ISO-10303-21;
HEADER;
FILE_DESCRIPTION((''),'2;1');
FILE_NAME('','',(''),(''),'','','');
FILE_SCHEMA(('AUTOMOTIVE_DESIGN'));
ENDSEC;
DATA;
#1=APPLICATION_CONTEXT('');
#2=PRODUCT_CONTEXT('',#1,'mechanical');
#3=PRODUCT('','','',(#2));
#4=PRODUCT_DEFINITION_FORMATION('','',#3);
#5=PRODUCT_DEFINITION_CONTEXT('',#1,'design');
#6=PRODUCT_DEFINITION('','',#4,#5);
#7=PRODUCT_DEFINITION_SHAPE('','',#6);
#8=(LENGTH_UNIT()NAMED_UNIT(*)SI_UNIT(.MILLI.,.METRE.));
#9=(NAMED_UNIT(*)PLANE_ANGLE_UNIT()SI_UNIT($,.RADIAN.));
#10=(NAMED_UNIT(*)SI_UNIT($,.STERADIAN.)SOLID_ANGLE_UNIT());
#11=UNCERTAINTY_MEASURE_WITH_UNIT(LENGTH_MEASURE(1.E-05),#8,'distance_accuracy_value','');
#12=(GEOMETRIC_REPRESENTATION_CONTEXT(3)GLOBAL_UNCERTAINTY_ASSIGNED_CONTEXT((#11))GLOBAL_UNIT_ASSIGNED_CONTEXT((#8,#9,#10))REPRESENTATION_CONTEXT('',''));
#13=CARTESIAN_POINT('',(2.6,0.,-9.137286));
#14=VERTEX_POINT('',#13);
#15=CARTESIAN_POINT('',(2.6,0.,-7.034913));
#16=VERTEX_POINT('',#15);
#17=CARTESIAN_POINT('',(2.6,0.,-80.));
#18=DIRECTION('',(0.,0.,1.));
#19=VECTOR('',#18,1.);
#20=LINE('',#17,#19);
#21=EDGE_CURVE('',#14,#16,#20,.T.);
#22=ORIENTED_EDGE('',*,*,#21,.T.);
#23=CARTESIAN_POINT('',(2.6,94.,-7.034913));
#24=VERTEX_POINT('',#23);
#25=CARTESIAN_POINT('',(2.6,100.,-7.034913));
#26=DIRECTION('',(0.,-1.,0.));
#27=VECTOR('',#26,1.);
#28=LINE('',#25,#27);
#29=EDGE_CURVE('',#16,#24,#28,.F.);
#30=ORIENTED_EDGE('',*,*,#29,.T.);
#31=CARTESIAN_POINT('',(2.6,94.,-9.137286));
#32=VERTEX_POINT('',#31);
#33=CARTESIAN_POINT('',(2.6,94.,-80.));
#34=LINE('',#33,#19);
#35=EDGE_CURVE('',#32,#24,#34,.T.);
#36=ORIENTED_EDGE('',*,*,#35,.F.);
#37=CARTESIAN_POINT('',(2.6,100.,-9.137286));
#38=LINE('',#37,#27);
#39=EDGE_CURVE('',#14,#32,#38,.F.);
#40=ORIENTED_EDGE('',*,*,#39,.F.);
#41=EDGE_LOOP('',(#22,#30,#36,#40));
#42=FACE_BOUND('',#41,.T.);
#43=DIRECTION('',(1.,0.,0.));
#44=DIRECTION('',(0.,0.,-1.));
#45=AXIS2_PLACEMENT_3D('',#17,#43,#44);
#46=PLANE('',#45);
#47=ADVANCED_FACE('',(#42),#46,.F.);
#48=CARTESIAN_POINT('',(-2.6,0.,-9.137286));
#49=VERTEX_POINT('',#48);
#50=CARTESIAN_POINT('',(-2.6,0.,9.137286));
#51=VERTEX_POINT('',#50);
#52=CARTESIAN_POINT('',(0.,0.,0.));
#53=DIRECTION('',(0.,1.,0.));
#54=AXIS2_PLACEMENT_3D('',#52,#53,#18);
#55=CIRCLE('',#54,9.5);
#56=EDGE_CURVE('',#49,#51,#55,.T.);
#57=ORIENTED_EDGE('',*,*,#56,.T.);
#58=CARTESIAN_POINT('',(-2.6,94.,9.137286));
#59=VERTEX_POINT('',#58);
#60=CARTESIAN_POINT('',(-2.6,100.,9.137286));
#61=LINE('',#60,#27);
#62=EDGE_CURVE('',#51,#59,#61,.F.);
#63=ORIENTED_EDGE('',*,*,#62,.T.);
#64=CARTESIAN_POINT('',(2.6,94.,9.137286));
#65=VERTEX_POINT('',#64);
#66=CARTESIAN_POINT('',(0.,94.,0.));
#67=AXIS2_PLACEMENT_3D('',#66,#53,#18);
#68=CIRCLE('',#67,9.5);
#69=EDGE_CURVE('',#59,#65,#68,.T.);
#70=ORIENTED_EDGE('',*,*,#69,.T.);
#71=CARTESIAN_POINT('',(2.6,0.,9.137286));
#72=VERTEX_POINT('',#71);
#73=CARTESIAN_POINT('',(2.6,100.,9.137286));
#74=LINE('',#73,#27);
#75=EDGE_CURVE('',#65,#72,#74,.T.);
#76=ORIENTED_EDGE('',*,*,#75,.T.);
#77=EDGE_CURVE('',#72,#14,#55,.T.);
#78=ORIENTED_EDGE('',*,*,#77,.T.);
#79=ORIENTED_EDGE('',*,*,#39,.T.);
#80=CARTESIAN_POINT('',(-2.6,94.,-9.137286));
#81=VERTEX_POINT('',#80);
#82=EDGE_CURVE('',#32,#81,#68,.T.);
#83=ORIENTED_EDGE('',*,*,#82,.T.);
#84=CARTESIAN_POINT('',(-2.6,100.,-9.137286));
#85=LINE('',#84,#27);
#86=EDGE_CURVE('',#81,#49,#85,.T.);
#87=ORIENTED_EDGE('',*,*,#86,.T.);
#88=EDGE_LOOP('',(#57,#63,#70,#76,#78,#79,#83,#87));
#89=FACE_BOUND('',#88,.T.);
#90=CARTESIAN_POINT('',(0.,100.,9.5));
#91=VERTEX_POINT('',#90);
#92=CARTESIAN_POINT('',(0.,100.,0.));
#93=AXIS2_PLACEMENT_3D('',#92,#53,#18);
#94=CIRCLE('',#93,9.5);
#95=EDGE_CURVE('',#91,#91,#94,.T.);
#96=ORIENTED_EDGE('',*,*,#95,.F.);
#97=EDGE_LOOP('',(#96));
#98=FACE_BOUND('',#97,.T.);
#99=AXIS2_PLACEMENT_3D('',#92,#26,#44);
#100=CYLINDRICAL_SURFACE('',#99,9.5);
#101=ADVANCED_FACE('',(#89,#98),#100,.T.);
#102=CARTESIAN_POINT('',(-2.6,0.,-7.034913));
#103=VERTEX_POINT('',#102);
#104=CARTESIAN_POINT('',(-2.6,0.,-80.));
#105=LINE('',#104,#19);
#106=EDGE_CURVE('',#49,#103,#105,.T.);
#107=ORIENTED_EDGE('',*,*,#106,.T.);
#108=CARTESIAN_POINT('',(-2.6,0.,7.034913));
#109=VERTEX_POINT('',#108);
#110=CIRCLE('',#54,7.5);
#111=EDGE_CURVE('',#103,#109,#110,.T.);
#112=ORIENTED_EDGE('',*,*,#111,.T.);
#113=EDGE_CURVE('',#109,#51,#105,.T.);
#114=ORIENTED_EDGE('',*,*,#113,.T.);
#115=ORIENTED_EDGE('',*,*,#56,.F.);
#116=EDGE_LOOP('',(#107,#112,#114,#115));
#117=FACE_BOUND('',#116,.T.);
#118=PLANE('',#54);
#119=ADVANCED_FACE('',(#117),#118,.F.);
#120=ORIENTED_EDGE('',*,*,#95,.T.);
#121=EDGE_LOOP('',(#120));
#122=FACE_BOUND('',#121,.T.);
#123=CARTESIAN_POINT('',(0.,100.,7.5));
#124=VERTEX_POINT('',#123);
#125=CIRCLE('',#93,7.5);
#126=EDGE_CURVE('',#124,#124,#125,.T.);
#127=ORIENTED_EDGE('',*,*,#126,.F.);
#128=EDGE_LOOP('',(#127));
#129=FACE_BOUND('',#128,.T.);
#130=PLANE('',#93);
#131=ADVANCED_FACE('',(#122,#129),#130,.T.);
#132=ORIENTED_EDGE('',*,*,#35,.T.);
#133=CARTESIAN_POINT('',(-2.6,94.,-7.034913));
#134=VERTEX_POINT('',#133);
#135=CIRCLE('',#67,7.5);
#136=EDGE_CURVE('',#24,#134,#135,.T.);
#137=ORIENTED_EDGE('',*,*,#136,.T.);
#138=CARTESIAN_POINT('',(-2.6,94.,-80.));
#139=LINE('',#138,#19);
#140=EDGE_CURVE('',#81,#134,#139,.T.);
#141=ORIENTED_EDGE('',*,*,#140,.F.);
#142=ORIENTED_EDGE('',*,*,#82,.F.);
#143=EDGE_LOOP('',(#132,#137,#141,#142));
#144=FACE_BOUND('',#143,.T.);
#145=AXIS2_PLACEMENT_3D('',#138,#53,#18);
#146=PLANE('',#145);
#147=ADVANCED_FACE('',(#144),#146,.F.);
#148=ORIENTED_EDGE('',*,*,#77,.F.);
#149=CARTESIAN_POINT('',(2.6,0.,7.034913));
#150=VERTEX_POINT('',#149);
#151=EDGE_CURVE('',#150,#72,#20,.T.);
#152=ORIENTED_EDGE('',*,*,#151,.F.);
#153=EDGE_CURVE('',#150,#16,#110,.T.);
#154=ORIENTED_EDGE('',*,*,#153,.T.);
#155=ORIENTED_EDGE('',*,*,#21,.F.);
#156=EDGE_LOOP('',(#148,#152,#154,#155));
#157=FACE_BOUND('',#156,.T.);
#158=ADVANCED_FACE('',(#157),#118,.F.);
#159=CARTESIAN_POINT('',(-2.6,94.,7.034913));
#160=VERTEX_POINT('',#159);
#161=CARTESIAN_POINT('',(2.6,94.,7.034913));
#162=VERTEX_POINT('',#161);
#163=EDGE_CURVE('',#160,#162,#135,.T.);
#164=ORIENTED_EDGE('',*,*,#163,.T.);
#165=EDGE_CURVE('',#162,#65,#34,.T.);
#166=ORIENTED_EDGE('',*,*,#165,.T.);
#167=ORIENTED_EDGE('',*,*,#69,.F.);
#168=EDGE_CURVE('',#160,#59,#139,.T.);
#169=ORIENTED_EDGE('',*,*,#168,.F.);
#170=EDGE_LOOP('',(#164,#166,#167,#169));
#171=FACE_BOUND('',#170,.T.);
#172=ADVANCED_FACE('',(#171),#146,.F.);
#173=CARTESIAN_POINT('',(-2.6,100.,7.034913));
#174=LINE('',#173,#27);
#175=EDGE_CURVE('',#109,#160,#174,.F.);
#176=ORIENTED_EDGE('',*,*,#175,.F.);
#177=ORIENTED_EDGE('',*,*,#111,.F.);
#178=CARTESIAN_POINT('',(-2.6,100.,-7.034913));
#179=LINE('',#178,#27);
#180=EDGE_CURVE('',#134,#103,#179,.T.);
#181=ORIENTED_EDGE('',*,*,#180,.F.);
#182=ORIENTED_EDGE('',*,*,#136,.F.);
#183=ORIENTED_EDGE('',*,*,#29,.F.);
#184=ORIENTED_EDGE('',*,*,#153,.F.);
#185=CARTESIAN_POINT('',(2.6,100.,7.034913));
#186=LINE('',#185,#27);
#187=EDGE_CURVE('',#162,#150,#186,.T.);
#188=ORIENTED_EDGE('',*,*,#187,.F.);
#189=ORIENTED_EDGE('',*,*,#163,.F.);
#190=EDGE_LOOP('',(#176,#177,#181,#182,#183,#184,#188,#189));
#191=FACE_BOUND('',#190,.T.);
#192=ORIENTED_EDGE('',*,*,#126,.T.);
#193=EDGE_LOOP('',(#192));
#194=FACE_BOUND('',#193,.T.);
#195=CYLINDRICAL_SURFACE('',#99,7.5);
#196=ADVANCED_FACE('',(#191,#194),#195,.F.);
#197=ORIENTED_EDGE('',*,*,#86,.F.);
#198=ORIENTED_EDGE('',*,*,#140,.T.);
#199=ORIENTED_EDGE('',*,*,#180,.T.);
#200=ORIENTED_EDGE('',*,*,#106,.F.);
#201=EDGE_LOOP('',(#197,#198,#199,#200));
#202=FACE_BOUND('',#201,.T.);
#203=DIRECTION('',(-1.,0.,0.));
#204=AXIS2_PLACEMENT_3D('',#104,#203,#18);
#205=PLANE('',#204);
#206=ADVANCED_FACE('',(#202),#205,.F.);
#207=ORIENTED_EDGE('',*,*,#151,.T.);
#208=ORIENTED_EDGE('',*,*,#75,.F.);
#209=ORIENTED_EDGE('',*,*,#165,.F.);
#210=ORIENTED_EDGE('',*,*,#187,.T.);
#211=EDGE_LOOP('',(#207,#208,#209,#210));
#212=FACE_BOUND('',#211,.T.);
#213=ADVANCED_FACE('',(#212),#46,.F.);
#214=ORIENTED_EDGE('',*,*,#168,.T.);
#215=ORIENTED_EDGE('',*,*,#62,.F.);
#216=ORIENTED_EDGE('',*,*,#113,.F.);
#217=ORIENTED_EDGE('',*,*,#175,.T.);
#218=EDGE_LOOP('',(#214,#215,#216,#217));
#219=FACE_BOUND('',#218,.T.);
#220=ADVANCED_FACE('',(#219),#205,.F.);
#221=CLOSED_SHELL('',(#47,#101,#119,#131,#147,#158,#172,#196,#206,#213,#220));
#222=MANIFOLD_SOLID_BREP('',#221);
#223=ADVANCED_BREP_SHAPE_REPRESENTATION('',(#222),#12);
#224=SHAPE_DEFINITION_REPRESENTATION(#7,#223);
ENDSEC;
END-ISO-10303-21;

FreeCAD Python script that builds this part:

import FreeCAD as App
import Part
import Sketcher

V = App.Vector


def add_polygon(sketch, points):
    """Adds a closed chain of lines whose ends are joined by coincident constraints."""
    first, n = sketch.GeometryCount, len(points)
    for a, b in zip(points, points[1:] + points[:1]):
        sketch.addGeometry(Part.LineSegment(App.Vector(*a, 0), App.Vector(*b, 0)), False)
    for i in range(n):
        sketch.addConstraint(Sketcher.Constraint("Coincident", first + i, 2, first + (i + 1) % n, 1))

doc = App.newDocument("Part")
body = doc.addObject("PartDesign::Body", "Body")

sketch1 = body.newObject("Sketcher::SketchObject", "Sketch")
sketch1.AttachmentSupport = (doc.getObject("XZ_Plane"), [""])
sketch1.MapMode = "FlatFace"
sketch1.addGeometry(Part.Circle(V(0, 0, 0), V(0, 0, 1), 10), False)
sketch1.addGeometry(Part.Circle(V(0, 0, 0), V(0, 0, 1), 8), False)
sketch1.addConstraint(Sketcher.Constraint("Coincident", 0, 3, -1, 1))
sketch1.addConstraint(Sketcher.Constraint("Coincident", 1, 3, -1, 1))
sketch1.addConstraint(Sketcher.Constraint("Diameter", 0, 19.0))
sketch1.addConstraint(Sketcher.Constraint("Diameter", 1, 15.0))
pad1 = body.newObject("PartDesign::Pad", "Pad")
pad1.Profile = sketch1
pad1.Length = 100
pad1.Reversed = True

sketch2 = body.newObject("Sketcher::SketchObject", "Sketch001")
sketch2.AttachmentSupport = (doc.getObject("XY_Plane"), [""])
sketch2.MapMode = "FlatFace"
sketch2.AttachmentOffset = App.Placement(V(0, 0, 20), App.Rotation())
add_polygon(sketch2, [(-3, 94), (-3, 0), (3, 0), (3, 94)])
sketch2.addConstraint(Sketcher.Constraint("Vertical", 0))
sketch2.addConstraint(Sketcher.Constraint("Horizontal", 1))
sketch2.addConstraint(Sketcher.Constraint("Vertical", 2))
sketch2.addConstraint(Sketcher.Constraint("Horizontal", 3))
sketch2.addConstraint(Sketcher.Constraint("Symmetric", 0, 2, 1, 2, -1, 1))
sketch2.addConstraint(Sketcher.Constraint("DistanceY", 0, 2, 0, 1, 94.0))
sketch2.addConstraint(Sketcher.Constraint("DistanceX", 1, 1, 1, 2, 5.2))
pocket1 = body.newObject("PartDesign::Pocket", "Pocket")
pocket1.Profile = sketch2
pocket1.Length = 100

doc.recompute()
